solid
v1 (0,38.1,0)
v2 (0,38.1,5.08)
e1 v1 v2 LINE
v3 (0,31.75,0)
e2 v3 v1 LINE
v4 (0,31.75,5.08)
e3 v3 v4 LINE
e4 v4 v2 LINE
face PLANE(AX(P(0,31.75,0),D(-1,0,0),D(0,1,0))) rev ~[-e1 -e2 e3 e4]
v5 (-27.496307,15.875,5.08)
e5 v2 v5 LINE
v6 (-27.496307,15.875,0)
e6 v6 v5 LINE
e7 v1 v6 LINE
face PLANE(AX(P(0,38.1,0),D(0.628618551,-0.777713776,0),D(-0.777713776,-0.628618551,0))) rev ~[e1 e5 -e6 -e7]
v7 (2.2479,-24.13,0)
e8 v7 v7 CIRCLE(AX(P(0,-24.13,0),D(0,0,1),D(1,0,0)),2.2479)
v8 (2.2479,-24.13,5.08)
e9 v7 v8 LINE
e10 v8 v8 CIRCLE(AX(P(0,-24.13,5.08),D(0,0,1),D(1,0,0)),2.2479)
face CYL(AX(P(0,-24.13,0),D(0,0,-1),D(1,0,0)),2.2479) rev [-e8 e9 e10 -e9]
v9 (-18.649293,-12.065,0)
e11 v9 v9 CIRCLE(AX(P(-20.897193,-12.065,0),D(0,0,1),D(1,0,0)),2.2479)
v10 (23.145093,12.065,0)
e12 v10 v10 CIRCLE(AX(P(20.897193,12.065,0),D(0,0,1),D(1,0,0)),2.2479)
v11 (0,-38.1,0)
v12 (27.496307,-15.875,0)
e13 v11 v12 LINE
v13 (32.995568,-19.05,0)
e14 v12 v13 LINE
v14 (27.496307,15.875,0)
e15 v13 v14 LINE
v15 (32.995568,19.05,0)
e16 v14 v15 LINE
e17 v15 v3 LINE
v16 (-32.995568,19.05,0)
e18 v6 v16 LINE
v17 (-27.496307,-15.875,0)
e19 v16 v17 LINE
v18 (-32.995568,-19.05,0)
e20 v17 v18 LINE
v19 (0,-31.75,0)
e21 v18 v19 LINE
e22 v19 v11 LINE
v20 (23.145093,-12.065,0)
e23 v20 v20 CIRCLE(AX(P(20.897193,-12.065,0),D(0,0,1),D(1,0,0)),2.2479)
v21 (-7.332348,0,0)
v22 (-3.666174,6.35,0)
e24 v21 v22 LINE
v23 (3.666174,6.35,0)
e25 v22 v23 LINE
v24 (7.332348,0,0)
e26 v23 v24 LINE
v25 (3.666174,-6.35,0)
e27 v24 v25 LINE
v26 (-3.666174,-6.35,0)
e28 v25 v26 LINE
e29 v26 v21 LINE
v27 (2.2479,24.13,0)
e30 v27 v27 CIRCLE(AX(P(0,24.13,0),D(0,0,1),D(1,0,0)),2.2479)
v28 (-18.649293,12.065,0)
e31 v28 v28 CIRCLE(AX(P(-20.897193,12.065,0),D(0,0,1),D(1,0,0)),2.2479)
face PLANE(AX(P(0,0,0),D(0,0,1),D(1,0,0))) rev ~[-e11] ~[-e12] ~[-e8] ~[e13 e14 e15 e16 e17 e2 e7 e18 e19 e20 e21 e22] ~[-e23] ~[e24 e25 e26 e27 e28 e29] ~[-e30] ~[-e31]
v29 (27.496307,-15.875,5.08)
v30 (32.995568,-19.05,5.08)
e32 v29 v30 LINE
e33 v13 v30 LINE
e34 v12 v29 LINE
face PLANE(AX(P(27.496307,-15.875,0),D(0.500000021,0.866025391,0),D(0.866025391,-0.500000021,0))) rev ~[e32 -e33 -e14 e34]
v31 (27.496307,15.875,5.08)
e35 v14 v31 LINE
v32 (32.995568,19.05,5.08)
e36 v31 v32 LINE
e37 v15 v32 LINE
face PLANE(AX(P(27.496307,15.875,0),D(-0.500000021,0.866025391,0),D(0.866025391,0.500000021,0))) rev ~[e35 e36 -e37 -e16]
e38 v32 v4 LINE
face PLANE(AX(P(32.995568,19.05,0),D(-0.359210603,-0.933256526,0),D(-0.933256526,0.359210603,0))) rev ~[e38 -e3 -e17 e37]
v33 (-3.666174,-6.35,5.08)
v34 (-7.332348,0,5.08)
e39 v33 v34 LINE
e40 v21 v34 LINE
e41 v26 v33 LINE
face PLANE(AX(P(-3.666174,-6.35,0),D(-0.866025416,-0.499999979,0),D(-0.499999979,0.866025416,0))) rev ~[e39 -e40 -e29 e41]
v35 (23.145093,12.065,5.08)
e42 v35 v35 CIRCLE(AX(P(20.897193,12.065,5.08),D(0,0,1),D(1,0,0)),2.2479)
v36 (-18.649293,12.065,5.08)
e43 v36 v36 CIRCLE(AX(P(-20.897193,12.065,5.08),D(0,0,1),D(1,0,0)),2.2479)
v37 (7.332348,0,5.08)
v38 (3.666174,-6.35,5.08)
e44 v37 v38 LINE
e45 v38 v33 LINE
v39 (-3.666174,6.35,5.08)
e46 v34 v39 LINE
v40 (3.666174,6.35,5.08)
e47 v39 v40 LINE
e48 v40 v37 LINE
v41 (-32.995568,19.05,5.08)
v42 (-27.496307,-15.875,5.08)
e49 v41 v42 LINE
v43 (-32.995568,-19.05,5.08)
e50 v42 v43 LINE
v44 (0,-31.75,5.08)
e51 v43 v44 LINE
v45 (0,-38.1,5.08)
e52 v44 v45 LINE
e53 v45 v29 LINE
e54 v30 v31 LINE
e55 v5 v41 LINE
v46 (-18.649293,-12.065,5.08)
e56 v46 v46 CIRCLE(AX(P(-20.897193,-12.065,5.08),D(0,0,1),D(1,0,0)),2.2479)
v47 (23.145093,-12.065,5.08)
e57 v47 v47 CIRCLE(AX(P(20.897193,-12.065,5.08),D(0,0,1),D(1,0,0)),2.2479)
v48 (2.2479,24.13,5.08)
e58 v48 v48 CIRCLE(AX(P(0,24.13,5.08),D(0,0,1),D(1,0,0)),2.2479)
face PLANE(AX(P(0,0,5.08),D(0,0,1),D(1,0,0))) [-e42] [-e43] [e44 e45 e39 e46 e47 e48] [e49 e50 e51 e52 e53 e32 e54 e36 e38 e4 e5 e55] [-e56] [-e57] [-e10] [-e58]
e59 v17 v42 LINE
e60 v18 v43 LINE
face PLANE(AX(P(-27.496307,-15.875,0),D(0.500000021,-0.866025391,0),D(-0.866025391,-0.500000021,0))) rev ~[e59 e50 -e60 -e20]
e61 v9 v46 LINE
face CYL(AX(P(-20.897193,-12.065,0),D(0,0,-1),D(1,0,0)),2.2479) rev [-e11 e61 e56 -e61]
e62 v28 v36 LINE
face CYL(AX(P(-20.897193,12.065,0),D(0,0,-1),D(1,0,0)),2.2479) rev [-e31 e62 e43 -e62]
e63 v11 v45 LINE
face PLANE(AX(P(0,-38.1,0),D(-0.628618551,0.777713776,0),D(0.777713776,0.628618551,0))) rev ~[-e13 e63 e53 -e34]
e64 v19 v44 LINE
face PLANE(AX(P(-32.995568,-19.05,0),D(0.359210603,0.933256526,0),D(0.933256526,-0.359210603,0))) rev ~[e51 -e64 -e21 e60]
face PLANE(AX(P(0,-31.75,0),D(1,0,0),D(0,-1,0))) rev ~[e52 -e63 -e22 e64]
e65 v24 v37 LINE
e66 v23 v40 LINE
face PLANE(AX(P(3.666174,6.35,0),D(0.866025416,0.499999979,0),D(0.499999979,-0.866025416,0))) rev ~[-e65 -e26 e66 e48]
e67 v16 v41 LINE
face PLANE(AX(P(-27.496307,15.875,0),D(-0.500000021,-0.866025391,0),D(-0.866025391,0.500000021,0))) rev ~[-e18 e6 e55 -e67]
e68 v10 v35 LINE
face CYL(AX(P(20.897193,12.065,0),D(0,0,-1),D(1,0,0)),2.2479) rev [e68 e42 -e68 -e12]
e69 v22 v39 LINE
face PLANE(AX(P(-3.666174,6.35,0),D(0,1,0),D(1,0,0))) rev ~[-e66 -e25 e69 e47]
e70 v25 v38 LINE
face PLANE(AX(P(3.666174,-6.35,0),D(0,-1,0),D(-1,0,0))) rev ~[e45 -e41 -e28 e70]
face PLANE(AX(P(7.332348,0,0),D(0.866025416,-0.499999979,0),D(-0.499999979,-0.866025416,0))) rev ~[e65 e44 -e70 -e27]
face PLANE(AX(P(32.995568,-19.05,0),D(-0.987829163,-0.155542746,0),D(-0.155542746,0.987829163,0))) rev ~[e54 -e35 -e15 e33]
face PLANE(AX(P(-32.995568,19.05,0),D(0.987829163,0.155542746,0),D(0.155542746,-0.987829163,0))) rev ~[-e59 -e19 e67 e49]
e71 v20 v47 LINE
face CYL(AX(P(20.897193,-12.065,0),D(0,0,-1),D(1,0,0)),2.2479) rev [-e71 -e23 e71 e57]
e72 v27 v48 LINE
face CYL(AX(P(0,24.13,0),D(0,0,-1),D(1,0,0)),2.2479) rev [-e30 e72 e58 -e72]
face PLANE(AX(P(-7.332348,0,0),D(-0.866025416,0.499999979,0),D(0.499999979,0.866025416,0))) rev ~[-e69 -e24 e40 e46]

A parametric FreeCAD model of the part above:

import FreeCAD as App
import Part
import Sketcher

V = App.Vector
Q = App.Units.Quantity

doc = App.newDocument("Part")
body = doc.addObject("PartDesign::Body", "Body")

sketch1 = body.newObject("Sketcher::SketchObject", "Sketch")
sketch1.AttachmentSupport = (doc.getObject("XY_Plane"), [""])
sketch1.MapMode = "FlatFace"
sketch1.addGeometry([
    Part.LineSegment(V(0, 31.8, 0), V(0, 38.1, 0)),
    Part.LineSegment(V(0, 38.1, 0), V(-27.5, 15.9, 0)),
    Part.LineSegment(V(-27.5, 15.9, 0), V(-33, 19.1, 0)),
    Part.LineSegment(V(-33, 19.1, 0), V(-27.5, -15.9, 0)),
    Part.LineSegment(V(-27.5, -15.9, 0), V(-33, -19.1, 0)),
    Part.LineSegment(V(-33, -19.1, 0), V(0, -31.8, 0)),
    Part.LineSegment(V(0, -31.8, 0), V(0, -38.1, 0)),
    Part.LineSegment(V(0, -38.1, 0), V(27.5, -15.9, 0)),
    Part.LineSegment(V(27.5, -15.9, 0), V(33, -19.1, 0)),
    Part.LineSegment(V(33, -19.1, 0), V(27.5, 15.9, 0)),
    Part.LineSegment(V(27.5, 15.9, 0), V(33, 19.1, 0)),
    Part.LineSegment(V(33, 19.1, 0), V(0, 31.8, 0)),
    Part.Circle(V(-20.9, -12.1, 0), V(0, 0, 1), 2.2),
    Part.Circle(V(0, -24.1, 0), V(0, 0, 1), 2.2),
    Part.Circle(V(20.9, -12.1, 0), V(0, 0, 1), 2.2),
    Part.Circle(V(-20.9, 12.1, 0), V(0, 0, 1), 2.2),
    Part.LineSegment(V(-3.7, -6.3, 0), V(-7.3, 0, 0)),
    Part.LineSegment(V(-7.3, 0, 0), V(-3.7, 6.3, 0)),
    Part.LineSegment(V(-3.7, 6.3, 0), V(3.7, 6.3, 0)),
    Part.LineSegment(V(3.7, 6.3, 0), V(7.3, 0, 0)),
    Part.LineSegment(V(7.3, 0, 0), V(3.7, -6.3, 0)),
    Part.LineSegment(V(3.7, -6.3, 0), V(-3.7, -6.3, 0)),
    Part.Circle(V(20.9, 12.1, 0), V(0, 0, 1), 2.2),
    Part.Circle(V(0, 24.1, 0), V(0, 0, 1), 2.2),
], False)
sketch1.addConstraint([
    Sketcher.Constraint("Coincident", 0, 2, 1, 1),
    Sketcher.Constraint("Coincident", 1, 2, 2, 1),
    Sketcher.Constraint("Coincident", 2, 2, 3, 1),
    Sketcher.Constraint("Coincident", 3, 2, 4, 1),
    Sketcher.Constraint("Coincident", 4, 2, 5, 1),
    Sketcher.Constraint("Coincident", 5, 2, 6, 1),
    Sketcher.Constraint("Coincident", 6, 2, 7, 1),
    Sketcher.Constraint("Coincident", 7, 2, 8, 1),
    Sketcher.Constraint("Coincident", 8, 2, 9, 1),
    Sketcher.Constraint("Coincident", 9, 2, 10, 1),
    Sketcher.Constraint("Coincident", 10, 2, 11, 1),
    Sketcher.Constraint("Coincident", 11, 2, 0, 1),
    Sketcher.Constraint("Coincident", 16, 2, 17, 1),
    Sketcher.Constraint("Coincident", 17, 2, 18, 1),
    Sketcher.Constraint("Coincident", 18, 2, 19, 1),
    Sketcher.Constraint("Coincident", 19, 2, 20, 1),
    Sketcher.Constraint("Coincident", 20, 2, 21, 1),
    Sketcher.Constraint("Coincident", 21, 2, 16, 1),
    Sketcher.Constraint("Vertical", 0),
    Sketcher.Constraint("Vertical", 6),
    Sketcher.Constraint("Horizontal", 18),
    Sketcher.Constraint("Horizontal", 21),
    Sketcher.Constraint("Equal", 12, 13),
    Sketcher.Constraint("Equal", 13, 14),
    Sketcher.Constraint("Equal", 14, 15),
    Sketcher.Constraint("Equal", 15, 22),
    Sketcher.Constraint("Equal", 22, 23),
    Sketcher.Constraint("Symmetric", 14, 3, 15, 3, -1, 1),
    Sketcher.Constraint("Symmetric", 12, 3, 22, 3, -1, 1),
    Sketcher.Constraint("Symmetric", 13, 3, 23, 3, -1, 1),
    Sketcher.Constraint("Symmetric", 0, 2, 6, 2, -1, 1),
    Sketcher.Constraint("Symmetric", 1, 2, 7, 2, -1, 1),
    Sketcher.Constraint("Symmetric", 2, 2, 8, 2, -1, 1),
    Sketcher.Constraint("Symmetric", 3, 2, 9, 2, -1, 1),
    Sketcher.Constraint("Symmetric", 4, 2, 10, 2, -1, 1),
    Sketcher.Constraint("Symmetric", 16, 2, 19, 2, -1, 1),
    Sketcher.Constraint("Symmetric", 17, 2, 20, 2, -1, 1),
    Sketcher.Constraint("Symmetric", 12, 3, 14, 3, -2),
    Sketcher.Constraint("Symmetric", 3, 2, 7, 2, -2),
    Sketcher.Constraint("Symmetric", 4, 2, 8, 2, -2),
    Sketcher.Constraint("Symmetric", 5, 2, 11, 2, -1),
    Sketcher.Constraint("PointOnObject", 13, 3, -2),
    Sketcher.Constraint("PointOnObject", 16, 2, -1),
    Sketcher.Constraint("Perpendicular", 10, 16),
    Sketcher.Constraint("Perpendicular", 8, 17),
    Sketcher.Constraint("Parallel", 16, 19),
    Sketcher.Constraint("Equal", 1, 3),
    Sketcher.Constraint("Equal", 3, 5),
    Sketcher.Constraint("Diameter", 12, Q("0.177 in")),
    Sketcher.Constraint("Angle", 2, Q("149.999999 deg")),
    Sketcher.Constraint("DistanceY", 0, 1, 0, 2, Q("0.25 in")),
    Sketcher.Constraint("DistanceY", -1, 1, 0, 2, Q("1.5 in")),
    Sketcher.Constraint("DistanceY", 13, 3, 23, 3, Q("1.9 in")),
    Sketcher.Constraint("DistanceY", 12, 3, 1, 2, Q("1.1 in")),
    Sketcher.Constraint("DistanceY", 2, 2, 23, 3, Q("0.2 in")),
    Sketcher.Constraint("DistanceY", 17, 2, 23, 3, Q("0.7 in")),
    Sketcher.Constraint("DistanceX", 18, 1, 18, 2, 7.332348),
    Sketcher.Constraint("DistanceX", 15, 3, 17, 2, 17.231019),
])
pad1 = body.newObject("PartDesign::Pad", "Pad")
pad1.Profile = sketch1
pad1.Length = Q("0.2 in")

doc.recompute()
